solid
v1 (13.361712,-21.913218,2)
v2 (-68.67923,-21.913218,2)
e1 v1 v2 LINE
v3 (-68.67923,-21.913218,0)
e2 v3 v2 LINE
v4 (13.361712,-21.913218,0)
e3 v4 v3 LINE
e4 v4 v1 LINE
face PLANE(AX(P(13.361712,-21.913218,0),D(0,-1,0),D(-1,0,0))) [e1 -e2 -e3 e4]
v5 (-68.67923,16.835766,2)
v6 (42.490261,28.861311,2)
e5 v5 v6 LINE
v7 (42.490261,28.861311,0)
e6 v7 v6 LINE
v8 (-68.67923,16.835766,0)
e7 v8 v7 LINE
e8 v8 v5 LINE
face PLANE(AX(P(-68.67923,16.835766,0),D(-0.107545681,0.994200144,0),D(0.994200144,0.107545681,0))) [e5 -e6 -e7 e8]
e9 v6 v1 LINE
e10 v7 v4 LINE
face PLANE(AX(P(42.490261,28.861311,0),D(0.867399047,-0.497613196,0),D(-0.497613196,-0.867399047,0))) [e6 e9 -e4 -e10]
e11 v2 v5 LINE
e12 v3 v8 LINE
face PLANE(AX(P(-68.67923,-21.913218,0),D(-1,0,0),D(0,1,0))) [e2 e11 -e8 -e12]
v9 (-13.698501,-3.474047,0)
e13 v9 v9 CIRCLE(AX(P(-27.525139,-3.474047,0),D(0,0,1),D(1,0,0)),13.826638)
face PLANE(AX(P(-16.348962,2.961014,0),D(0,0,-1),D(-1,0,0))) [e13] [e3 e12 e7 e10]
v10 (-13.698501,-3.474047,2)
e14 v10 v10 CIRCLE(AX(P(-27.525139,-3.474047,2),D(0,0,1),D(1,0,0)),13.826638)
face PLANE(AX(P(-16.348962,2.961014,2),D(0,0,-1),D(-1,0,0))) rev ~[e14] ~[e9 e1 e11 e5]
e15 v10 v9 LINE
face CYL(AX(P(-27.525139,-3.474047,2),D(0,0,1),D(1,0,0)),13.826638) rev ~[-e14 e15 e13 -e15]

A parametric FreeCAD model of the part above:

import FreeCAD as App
import Part
import Sketcher

doc = App.newDocument("Part")
body = doc.addObject("PartDesign::Body", "Body")

# Sketch on XY plane
sketch1 = body.newObject("Sketcher::SketchObject", "Sketch")
sketch1.AttachmentSupport = (doc.getObject("XY_Plane"), [""])
sketch1.MapMode = "FlatFace"
sketch1.addGeometry(Part.LineSegment(App.Vector(42, 29, 0), App.Vector(-69, 17, 0)), False)
sketch1.addGeometry(Part.LineSegment(App.Vector(-69, 17, 0), App.Vector(-69, -22, 0)), False)
sketch1.addGeometry(Part.LineSegment(App.Vector(-69, -22, 0), App.Vector(13, -22, 0)), False)
sketch1.addGeometry(Part.LineSegment(App.Vector(13, -22, 0), App.Vector(42, 29, 0)), False)
sketch1.addConstraint(Sketcher.Constraint("Coincident", 0, 2, 1, 1))
sketch1.addConstraint(Sketcher.Constraint("Coincident", 1, 2, 2, 1))
sketch1.addConstraint(Sketcher.Constraint("Coincident", 2, 2, 3, 1))
sketch1.addConstraint(Sketcher.Constraint("Coincident", 3, 2, 0, 1))
sketch1.addConstraint(Sketcher.Constraint("Vertical", 1))
sketch1.addConstraint(Sketcher.Constraint("Horizontal", 2))
sketch1.addConstraint(Sketcher.Constraint("DistanceX", 2, 1, 2, 2, 82.040942))
sketch1.addConstraint(Sketcher.Constraint("Distance", 0, 111.818019))
sketch1.addConstraint(Sketcher.Constraint("Distance", 3, 58.536528))
sketch1.addConstraint(Sketcher.Constraint("DistanceY", 1, 2, 1, 1, 38.748984))
sketch1.addConstraint(Sketcher.Constraint("DistanceX", 0, 2, -1, 1, 68.67923))
sketch1.addConstraint(Sketcher.Constraint("DistanceY", 1, 2, -1, 1, 21.913218))
pad1 = body.newObject("PartDesign::Pad", "Pad")
pad1.Profile = sketch1
pad1.Length = 2

# Sketch on XY plane
sketch2 = body.newObject("Sketcher::SketchObject", "Sketch001")
sketch2.AttachmentSupport = (doc.getObject("XY_Plane"), [""])
sketch2.MapMode = "FlatFace"
sketch2.AttachmentOffset = App.Placement(App.Vector(0, 0, 2), App.Rotation())
sketch2.addGeometry(Part.Circle(App.Vector(-28, -3, 0), App.Vector(0, 0, 1), 14), False)
sketch2.addConstraint(Sketcher.Constraint("Diameter", 0, 27.653276))
sketch2.addConstraint(Sketcher.Constraint("DistanceX", 0, 3, -1, 1, 27.525139))
sketch2.addConstraint(Sketcher.Constraint("DistanceY", 0, 3, -1, 1, 3.474047))
pocket1 = body.newObject("PartDesign::Pocket", "Pocket")
pocket1.Profile = sketch2
pocket1.Type = "ThroughAll"

doc.recompute()
